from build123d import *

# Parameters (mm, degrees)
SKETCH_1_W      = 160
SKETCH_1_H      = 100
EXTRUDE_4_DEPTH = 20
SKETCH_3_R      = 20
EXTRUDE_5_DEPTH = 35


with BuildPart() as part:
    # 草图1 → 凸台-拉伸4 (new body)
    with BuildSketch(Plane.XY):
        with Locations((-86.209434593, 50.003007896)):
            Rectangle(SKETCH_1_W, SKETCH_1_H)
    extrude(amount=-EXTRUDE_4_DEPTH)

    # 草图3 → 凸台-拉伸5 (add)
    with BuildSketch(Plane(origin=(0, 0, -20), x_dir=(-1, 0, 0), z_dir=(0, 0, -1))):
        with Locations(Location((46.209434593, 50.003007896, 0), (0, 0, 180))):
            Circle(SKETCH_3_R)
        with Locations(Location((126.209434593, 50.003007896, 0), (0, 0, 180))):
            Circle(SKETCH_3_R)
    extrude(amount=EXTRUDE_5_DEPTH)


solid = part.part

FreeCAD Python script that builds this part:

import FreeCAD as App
import Part
import Sketcher

V = App.Vector
Q = App.Units.Quantity


def add_polygon(sketch, points):
    """Adds a closed chain of lines whose ends are joined by coincident constraints."""
    first, n = sketch.GeometryCount, len(points)
    for a, b in zip(points, points[1:] + points[:1]):
        sketch.addGeometry(Part.LineSegment(App.Vector(*a, 0), App.Vector(*b, 0)), False)
    for i in range(n):
        sketch.addConstraint(Sketcher.Constraint("Coincident", first + i, 2, first + (i + 1) % n, 1))

doc = App.newDocument("Part")
body = doc.addObject("PartDesign::Body", "Body")

sketch1 = body.newObject("Sketcher::SketchObject", "Sketch")
sketch1.AttachmentSupport = (doc.getObject("XY_Plane"), [""])
sketch1.MapMode = "FlatFace"
add_polygon(sketch1, [(-166.209435, 100.003008), (-166.209435, 0.003008), (-6.209435, 0.003008), (-6.209435, 100.003008)])
sketch1.addConstraint([
    Sketcher.Constraint("Vertical", 0),
    Sketcher.Constraint("Horizontal", 1),
    Sketcher.Constraint("Vertical", 2),
    Sketcher.Constraint("Horizontal", 3),
    Sketcher.Constraint("DistanceX", 1, 1, 1, 2, Q("160 mm")),
    Sketcher.Constraint("DistanceY", 0, 2, 0, 1, Q("100 mm")),
    Sketcher.Constraint("DistanceX", 0, 2, -1, 1, Q("166.209435 mm")),
    Sketcher.Constraint("DistanceY", -1, 1, 0, 2, Q("0.003008 mm")),
])
pad1 = body.newObject("PartDesign::Pad", "Pad")
pad1.Profile = sketch1
pad1.Length = 20
pad1.Reversed = True

sketch2 = body.newObject("Sketcher::SketchObject", "Sketch001")
sketch2.AttachmentSupport = (doc.getObject("XY_Plane"), [""])
sketch2.MapMode = "FlatFace"
sketch2.AttachmentOffset = App.Placement(V(0, 0, -20), App.Rotation())
sketch2.addGeometry([
    Part.Circle(V(-46.209435, 50.003008, 0), V(0, 0, 1), 20),
    Part.Circle(V(-126.209435, 50.003008, 0), V(0, 0, 1), 20),
], False)
sketch2.addConstraint([
    Sketcher.Constraint("Equal", 0, 1),
    Sketcher.Constraint("Horizontal", 0, 3, 1, 3),
    Sketcher.Constraint("Diameter", 0, Q("40 mm")),
    Sketcher.Constraint("DistanceX", 1, 3, 0, 3, Q("80 mm")),
    Sketcher.Constraint("DistanceX", 0, 3, -1, 1, Q("46.209435 mm")),
    Sketcher.Constraint("DistanceY", -1, 1, 0, 3, Q("50.003008 mm")),
])
pad2 = body.newObject("PartDesign::Pad", "Pad001")
pad2.Profile = sketch2
pad2.Length = 35
pad2.Reversed = True

doc.recompute()
